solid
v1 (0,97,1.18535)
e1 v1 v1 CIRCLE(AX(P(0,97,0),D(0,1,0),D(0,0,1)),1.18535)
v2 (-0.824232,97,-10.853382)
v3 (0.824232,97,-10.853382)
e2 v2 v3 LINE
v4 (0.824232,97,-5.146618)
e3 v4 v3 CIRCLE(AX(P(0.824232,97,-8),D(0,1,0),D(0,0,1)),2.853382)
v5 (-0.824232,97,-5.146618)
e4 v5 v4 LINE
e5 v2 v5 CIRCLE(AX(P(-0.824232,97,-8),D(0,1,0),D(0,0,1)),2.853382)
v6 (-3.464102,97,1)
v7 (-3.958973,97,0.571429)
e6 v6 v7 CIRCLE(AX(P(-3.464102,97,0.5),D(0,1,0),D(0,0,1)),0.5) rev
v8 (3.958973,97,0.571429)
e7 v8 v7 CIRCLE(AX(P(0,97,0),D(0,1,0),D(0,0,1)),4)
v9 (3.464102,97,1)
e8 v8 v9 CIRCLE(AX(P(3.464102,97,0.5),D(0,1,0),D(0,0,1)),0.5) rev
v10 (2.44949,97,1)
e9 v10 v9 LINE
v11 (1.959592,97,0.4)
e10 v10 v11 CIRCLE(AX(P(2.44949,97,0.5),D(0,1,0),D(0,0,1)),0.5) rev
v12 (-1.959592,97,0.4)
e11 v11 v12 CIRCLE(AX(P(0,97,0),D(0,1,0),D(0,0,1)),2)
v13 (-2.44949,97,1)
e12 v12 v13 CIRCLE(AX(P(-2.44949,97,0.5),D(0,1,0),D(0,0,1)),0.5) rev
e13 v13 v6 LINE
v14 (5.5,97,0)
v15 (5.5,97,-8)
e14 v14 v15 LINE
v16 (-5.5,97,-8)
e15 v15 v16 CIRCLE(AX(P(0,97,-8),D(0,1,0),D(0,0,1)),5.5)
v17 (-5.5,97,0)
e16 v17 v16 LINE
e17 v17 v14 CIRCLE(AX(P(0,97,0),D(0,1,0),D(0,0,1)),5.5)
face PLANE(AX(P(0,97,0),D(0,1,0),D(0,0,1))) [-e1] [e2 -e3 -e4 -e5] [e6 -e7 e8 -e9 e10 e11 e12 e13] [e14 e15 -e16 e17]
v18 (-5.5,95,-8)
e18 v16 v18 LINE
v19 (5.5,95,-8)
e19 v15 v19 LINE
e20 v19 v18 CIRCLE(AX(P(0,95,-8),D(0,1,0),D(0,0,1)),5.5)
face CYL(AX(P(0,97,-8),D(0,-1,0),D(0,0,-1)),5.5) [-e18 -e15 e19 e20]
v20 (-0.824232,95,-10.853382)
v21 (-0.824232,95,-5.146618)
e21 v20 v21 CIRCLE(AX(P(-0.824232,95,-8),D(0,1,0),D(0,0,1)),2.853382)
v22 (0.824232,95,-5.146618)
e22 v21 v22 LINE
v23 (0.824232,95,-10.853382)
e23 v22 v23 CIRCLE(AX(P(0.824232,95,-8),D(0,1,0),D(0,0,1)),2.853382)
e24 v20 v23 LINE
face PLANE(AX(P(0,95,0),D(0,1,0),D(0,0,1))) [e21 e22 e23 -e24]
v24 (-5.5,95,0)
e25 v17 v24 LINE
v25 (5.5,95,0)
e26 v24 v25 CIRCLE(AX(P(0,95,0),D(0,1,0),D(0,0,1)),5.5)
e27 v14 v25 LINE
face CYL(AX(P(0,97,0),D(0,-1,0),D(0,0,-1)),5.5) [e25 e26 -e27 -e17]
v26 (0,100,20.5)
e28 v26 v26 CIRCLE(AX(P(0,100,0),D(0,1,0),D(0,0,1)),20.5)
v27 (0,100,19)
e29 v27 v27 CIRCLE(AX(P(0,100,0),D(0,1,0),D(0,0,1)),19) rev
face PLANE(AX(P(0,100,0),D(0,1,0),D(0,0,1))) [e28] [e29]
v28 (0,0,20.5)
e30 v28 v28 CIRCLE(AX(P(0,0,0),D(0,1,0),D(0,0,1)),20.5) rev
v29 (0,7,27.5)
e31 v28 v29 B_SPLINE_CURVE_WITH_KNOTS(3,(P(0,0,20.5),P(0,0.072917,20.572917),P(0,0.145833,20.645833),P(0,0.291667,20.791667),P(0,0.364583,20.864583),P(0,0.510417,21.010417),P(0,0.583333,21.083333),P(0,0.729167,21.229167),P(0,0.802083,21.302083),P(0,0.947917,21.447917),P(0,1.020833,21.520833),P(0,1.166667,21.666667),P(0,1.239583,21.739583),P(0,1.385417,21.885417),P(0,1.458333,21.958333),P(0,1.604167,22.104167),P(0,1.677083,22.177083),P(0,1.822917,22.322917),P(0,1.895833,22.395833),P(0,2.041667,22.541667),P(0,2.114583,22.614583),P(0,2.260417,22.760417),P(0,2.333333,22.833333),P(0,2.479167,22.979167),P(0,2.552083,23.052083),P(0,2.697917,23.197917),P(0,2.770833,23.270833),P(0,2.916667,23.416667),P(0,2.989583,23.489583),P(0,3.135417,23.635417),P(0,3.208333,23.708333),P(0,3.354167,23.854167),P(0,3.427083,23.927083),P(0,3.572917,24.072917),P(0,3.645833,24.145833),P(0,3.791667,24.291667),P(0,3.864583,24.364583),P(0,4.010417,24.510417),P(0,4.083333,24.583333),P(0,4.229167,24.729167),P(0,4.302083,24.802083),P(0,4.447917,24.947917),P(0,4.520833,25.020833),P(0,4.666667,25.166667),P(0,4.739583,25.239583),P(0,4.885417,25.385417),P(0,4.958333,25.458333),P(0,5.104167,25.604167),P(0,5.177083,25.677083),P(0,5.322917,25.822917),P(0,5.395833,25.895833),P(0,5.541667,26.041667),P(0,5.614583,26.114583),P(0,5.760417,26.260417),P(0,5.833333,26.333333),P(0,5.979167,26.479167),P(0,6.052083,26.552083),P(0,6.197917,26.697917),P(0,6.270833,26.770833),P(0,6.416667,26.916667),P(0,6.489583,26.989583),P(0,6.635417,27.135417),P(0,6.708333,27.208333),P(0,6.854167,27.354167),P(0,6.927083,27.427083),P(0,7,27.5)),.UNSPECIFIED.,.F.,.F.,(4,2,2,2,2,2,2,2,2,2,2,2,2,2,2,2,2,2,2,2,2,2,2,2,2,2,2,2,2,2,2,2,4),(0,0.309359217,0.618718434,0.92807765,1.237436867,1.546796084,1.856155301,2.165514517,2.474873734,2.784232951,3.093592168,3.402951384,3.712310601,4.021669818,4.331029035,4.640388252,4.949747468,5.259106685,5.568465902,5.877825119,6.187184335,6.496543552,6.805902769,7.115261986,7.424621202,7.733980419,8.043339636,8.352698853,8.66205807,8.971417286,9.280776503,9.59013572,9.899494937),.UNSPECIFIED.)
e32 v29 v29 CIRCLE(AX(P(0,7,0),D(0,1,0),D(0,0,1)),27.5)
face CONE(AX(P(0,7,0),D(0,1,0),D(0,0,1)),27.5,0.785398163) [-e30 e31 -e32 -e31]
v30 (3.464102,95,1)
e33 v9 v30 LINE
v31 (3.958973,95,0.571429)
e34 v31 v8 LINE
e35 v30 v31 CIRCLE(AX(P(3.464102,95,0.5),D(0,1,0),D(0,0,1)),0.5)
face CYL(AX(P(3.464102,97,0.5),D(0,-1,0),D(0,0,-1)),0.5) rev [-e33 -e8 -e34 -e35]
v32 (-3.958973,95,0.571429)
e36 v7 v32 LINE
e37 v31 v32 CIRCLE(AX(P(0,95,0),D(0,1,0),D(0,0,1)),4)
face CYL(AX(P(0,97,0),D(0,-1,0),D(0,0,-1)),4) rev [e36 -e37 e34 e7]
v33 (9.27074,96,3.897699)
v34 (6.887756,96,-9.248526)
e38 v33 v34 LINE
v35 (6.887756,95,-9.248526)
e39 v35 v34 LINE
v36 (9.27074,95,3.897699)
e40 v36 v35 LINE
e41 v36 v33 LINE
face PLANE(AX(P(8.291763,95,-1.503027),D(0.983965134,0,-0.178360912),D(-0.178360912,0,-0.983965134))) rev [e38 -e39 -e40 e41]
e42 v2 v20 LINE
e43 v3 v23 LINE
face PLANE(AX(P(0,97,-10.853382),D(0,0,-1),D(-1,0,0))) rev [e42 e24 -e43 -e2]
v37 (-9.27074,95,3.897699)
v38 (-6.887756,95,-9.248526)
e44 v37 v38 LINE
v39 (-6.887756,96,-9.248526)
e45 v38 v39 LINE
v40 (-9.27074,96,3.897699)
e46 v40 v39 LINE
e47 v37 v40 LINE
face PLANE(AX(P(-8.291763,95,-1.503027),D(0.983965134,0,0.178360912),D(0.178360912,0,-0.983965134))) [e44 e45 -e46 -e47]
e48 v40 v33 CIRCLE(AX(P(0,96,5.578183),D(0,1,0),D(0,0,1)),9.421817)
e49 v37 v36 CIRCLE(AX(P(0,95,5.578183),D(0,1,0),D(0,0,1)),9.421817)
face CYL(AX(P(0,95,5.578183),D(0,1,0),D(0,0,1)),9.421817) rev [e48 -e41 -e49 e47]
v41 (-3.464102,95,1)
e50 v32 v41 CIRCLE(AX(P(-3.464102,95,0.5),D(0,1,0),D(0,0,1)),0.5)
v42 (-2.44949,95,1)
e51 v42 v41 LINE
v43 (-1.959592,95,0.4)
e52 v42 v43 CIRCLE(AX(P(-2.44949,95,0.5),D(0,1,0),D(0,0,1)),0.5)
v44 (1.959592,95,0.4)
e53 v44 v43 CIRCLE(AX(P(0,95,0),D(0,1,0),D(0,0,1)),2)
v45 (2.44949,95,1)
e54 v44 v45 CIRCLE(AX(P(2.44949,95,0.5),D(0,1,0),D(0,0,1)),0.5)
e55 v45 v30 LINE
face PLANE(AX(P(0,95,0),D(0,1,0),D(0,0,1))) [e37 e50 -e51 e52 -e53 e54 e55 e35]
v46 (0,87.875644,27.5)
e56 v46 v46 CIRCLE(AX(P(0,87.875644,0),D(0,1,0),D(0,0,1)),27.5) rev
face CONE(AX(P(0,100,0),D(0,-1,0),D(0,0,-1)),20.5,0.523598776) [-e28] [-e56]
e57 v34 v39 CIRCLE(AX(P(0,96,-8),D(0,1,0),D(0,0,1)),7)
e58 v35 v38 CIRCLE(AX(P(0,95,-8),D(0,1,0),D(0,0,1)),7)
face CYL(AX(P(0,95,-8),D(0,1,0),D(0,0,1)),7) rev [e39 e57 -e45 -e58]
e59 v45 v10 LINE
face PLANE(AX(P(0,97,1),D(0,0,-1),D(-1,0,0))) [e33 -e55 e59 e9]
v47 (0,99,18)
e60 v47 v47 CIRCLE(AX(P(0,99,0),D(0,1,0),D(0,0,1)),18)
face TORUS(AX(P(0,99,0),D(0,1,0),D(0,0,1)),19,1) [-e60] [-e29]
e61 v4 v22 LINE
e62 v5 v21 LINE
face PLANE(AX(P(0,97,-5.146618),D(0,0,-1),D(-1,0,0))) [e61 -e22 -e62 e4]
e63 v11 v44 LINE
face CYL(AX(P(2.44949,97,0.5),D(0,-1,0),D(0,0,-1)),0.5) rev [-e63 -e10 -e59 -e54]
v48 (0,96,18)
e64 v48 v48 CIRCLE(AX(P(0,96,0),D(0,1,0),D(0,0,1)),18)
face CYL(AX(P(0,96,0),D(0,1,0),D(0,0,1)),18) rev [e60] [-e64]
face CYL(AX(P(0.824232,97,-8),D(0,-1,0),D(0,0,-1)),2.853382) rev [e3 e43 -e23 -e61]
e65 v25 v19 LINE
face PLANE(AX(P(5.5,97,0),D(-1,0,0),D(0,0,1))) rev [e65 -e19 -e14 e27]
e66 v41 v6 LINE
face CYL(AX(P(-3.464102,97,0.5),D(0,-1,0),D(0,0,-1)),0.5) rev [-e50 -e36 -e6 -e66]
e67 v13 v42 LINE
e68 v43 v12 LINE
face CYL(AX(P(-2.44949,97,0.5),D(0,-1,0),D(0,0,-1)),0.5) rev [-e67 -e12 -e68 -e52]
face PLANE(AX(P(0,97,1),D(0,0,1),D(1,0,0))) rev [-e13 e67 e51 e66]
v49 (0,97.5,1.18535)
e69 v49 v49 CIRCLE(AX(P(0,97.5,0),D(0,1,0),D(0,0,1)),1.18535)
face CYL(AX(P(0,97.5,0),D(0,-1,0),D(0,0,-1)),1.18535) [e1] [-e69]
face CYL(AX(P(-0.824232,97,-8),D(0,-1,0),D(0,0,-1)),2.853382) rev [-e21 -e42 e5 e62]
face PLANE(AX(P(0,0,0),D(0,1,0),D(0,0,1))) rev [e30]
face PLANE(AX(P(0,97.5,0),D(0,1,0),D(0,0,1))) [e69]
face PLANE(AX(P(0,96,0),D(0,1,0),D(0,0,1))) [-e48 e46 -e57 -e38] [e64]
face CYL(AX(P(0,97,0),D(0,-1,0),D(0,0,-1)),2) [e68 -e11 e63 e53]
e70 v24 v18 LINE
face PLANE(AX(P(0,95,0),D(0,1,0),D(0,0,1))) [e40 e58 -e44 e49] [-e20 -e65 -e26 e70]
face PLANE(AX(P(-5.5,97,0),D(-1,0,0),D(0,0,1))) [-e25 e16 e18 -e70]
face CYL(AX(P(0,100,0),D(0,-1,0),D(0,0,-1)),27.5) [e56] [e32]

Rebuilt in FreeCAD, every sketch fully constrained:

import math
import FreeCAD as App
import Part
import Sketcher
from FreeCAD import Vector


def edges_at(feature, points):
    """Names of the edges that pass closest to the given points."""
    edges = feature.Shape.Edges
    near = lambda p: min(range(len(edges)), key=lambda i: edges[i].distToShape(Part.Vertex(*p))[0])
    return sorted({f"Edge{near(p) + 1}" for p in points})

doc = App.newDocument("Part")
body = doc.addObject("PartDesign::Body", "Body")

sketch1 = body.newObject("Sketcher::SketchObject", "Sketch")
sketch1.AttachmentSupport = (doc.getObject("XZ_Plane"), [""])
sketch1.MapMode = "FlatFace"
sketch1.addGeometry(Part.Circle(Vector(0, 0, 0), Vector(0, 0, 1), 28), False)
sketch1.addConstraint([
    Sketcher.Constraint("Coincident", 0, 3, -1, 1),
    Sketcher.Constraint("Diameter", 0, 55.0),
])
pad1 = body.newObject("PartDesign::Pad", "Pad")
pad1.Profile = sketch1
pad1.Length = 100
pad1.Reversed = True
doc.recompute()

chamfer = body.newObject("PartDesign::Chamfer", "Chamfer")
chamfer.Base = (pad1, edges_at(pad1, [(0, 100, -27.5)]))
chamfer.ChamferType = "Two distances"
chamfer.Size = 7
chamfer.Size2 = 12.124356
chamfer.FlipDirection = True
doc.recompute()

chamfer2 = body.newObject("PartDesign::Chamfer", "Chamfer001")
chamfer2.Base = (chamfer, edges_at(chamfer, [(0, 0, -27.5)]))
chamfer2.Size = 7

sketch2 = body.newObject("Sketcher::SketchObject", "Sketch001")
sketch2.AttachmentSupport = (doc.getObject("XZ_Plane"), [""])
sketch2.MapMode = "FlatFace"
sketch2.AttachmentOffset = App.Placement(Vector(0, 0, -100), App.Rotation())
sketch2.addGeometry(Part.Circle(Vector(0, 0, 0), Vector(0, 0, 1), 18), False)
sketch2.addConstraint([
    Sketcher.Constraint("Coincident", 0, 3, -1, 1),
    Sketcher.Constraint("Diameter", 0, 36.0),
])
pocket1 = body.newObject("PartDesign::Pocket", "Pocket")
pocket1.Profile = sketch2
pocket1.Length = 4
pocket1.Reversed = True
doc.recompute()

fillet = body.newObject("PartDesign::Fillet", "Fillet")
fillet.Base = (pocket1, edges_at(pocket1, [(0, 100, -18)]))
fillet.Radius = 1

sketch3 = body.newObject("Sketcher::SketchObject", "Sketch002")
sketch3.AttachmentSupport = (doc.getObject("XZ_Plane"), [""])
sketch3.MapMode = "FlatFace"
sketch3.AttachmentOffset = App.Placement(Vector(0, 0, -96), App.Rotation())
sketch3.addGeometry([
    Part.ArcOfCircle(Part.Circle(Vector(0, 6, 0), Vector(0, 0, 1), 9), math.radians(-10), math.radians(190)),
    Part.LineSegment(Vector(9, 4, 0), Vector(7, -9, 0)),
    Part.ArcOfCircle(Part.Circle(Vector(0, -8, 0), Vector(0, 0, 1), 7), math.radians(-170), math.radians(-10)),
    Part.LineSegment(Vector(-7, -9, 0), Vector(-9, 4, 0)),
], False)
sketch3.addConstraint([
    Sketcher.Constraint("Tangent", 0, 1, 1, 1),
    Sketcher.Constraint("Tangent", 1, 2, 2, 2),
    Sketcher.Constraint("Tangent", 2, 1, 3, 1),
    Sketcher.Constraint("Tangent", 3, 2, 0, 2),
    Sketcher.Constraint("Symmetric", 1, 2, 2, 1, -2),
    Sketcher.Constraint("Radius", 2, 7.0),
    Sketcher.Constraint("DistanceY", 2, 3, -1, 1, 8.0),
    Sketcher.Constraint("Radius", 0, 9.421817),
    Sketcher.Constraint("DistanceY", -1, 1, 0, 1, 3.897699),
])
pocket2 = body.newObject("PartDesign::Pocket", "Pocket001")
pocket2.Profile = sketch3
pocket2.Length = 1
pocket2.Reversed = True

sketch4 = body.newObject("Sketcher::SketchObject", "Sketch003")
sketch4.AttachmentSupport = (doc.getObject("XZ_Plane"), [""])
sketch4.MapMode = "FlatFace"
sketch4.AttachmentOffset = App.Placement(Vector(0, 0, -95), App.Rotation())
sketch4.addGeometry([
    Part.LineSegment(Vector(-5.5, -8, 0), Vector(-5.5, 0, 0)),
    Part.ArcOfCircle(Part.Circle(Vector(0, 0, 0), Vector(0, 0, 1), 5.5), math.radians(0), math.radians(180)),
    Part.LineSegment(Vector(5.5, 0, 0), Vector(5.5, -8, 0)),
    Part.ArcOfCircle(Part.Circle(Vector(0, -8, 0), Vector(0, 0, 1), 5.5), math.radians(180), math.radians(360)),
    Part.ArcOfCircle(Part.Circle(Vector(0, 0, 0), Vector(0, 0, 1), 4), math.radians(166), math.radians(374)),
    Part.LineSegment(Vector(3.9, 1, 0), Vector(1.7, 1, 0)),
    Part.ArcOfCircle(Part.Circle(Vector(0, 0, 0), Vector(0, 0, 1), 2), math.radians(150), math.radians(390)),
    Part.LineSegment(Vector(-1.7, 1, 0), Vector(-3.9, 1, 0)),
    Part.LineSegment(Vector(0.8, -5.1, 0), Vector(-0.8, -5.1, 0)),
    Part.ArcOfCircle(Part.Circle(Vector(-0.8, -8, 0), Vector(0, 0, 1), 2.9), math.radians(90), math.radians(270)),
    Part.LineSegment(Vector(-0.8, -10.9, 0), Vector(0.8, -10.9, 0)),
    Part.ArcOfCircle(Part.Circle(Vector(0.8, -8, 0), Vector(0, 0, 1), 2.9), math.radians(-90), math.radians(90)),
], False)
sketch4.addConstraint([
    Sketcher.Constraint("Tangent", 0, 2, 1, 2),
    Sketcher.Constraint("Tangent", 1, 1, 2, 1),
    Sketcher.Constraint("Tangent", 2, 2, 3, 2),
    Sketcher.Constraint("Tangent", 3, 1, 0, 1),
    Sketcher.Constraint("Coincident", 4, 2, 5, 1),
    Sketcher.Constraint("Coincident", 5, 2, 6, 2),
    Sketcher.Constraint("Coincident", 6, 1, 7, 1),
    Sketcher.Constraint("Coincident", 7, 2, 4, 1),
    Sketcher.Constraint("Tangent", 8, 2, 9, 1),
    Sketcher.Constraint("Tangent", 9, 2, 10, 1),
    Sketcher.Constraint("Tangent", 10, 2, 11, 1),
    Sketcher.Constraint("Tangent", 11, 2, 8, 1),
    Sketcher.Constraint("Vertical", 0),
    Sketcher.Constraint("Vertical", 2),
    Sketcher.Constraint("Horizontal", 5),
    Sketcher.Constraint("Horizontal", 7),
    Sketcher.Constraint("Horizontal", 8),
    Sketcher.Constraint("Horizontal", 10),
    Sketcher.Constraint("Coincident", 1, 3, -1, 1),
    Sketcher.Constraint("Coincident", 4, 3, -1, 1),
    Sketcher.Constraint("Coincident", 6, 3, -1, 1),
    Sketcher.Constraint("Horizontal", 3, 3, 9, 3),
    Sketcher.Constraint("Horizontal", 5, 2, 6, 1),
    Sketcher.Constraint("Radius", 4, 4.0),
    Sketcher.Constraint("Radius", 6, 2.0),
    Sketcher.Constraint("Radius", 1, 5.5),
    Sketcher.Constraint("DistanceY", 0, 1, 0, 2, 8.0),
    Sketcher.Constraint("DistanceY", -1, 1, 4, 2, 1.0),
    Sketcher.Constraint("Radius", 9, 2.853382),
    Sketcher.Constraint("DistanceX", 8, 2, 8, 1, 1.648464),
    Sketcher.Constraint("DistanceX", 9, 3, -1, 1, 0.824232),
])
pad2 = body.newObject("PartDesign::Pad", "Pad001")
pad2.Profile = sketch4
pad2.Length = 2
pad2.Reversed = True
doc.recompute()

fillet2 = body.newObject("PartDesign::Fillet", "Fillet001")
fillet2.Base = (pad2, edges_at(pad2, [
    (-3.873, 96, 1),
    (3.873, 96, 1),
    (1.732, 96, 1),
    (-1.732, 96, 1),
]))
fillet2.Radius = 0.5

sketch5 = body.newObject("Sketcher::SketchObject", "Sketch004")
sketch5.AttachmentSupport = (doc.getObject("XZ_Plane"), [""])
sketch5.MapMode = "FlatFace"
sketch5.AttachmentOffset = App.Placement(Vector(0, 0, -97), App.Rotation())
sketch5.addGeometry(Part.Circle(Vector(0, 0, 0), Vector(0, 0, 1), 1.2), False)
sketch5.addConstraint([
    Sketcher.Constraint("Coincident", 0, 3, -1, 1),
    Sketcher.Constraint("Diameter", 0, 2.370699),
])
pad3 = body.newObject("PartDesign::Pad", "Pad002")
pad3.Profile = sketch5
pad3.Length = 0.5
pad3.Reversed = True

doc.recompute()
